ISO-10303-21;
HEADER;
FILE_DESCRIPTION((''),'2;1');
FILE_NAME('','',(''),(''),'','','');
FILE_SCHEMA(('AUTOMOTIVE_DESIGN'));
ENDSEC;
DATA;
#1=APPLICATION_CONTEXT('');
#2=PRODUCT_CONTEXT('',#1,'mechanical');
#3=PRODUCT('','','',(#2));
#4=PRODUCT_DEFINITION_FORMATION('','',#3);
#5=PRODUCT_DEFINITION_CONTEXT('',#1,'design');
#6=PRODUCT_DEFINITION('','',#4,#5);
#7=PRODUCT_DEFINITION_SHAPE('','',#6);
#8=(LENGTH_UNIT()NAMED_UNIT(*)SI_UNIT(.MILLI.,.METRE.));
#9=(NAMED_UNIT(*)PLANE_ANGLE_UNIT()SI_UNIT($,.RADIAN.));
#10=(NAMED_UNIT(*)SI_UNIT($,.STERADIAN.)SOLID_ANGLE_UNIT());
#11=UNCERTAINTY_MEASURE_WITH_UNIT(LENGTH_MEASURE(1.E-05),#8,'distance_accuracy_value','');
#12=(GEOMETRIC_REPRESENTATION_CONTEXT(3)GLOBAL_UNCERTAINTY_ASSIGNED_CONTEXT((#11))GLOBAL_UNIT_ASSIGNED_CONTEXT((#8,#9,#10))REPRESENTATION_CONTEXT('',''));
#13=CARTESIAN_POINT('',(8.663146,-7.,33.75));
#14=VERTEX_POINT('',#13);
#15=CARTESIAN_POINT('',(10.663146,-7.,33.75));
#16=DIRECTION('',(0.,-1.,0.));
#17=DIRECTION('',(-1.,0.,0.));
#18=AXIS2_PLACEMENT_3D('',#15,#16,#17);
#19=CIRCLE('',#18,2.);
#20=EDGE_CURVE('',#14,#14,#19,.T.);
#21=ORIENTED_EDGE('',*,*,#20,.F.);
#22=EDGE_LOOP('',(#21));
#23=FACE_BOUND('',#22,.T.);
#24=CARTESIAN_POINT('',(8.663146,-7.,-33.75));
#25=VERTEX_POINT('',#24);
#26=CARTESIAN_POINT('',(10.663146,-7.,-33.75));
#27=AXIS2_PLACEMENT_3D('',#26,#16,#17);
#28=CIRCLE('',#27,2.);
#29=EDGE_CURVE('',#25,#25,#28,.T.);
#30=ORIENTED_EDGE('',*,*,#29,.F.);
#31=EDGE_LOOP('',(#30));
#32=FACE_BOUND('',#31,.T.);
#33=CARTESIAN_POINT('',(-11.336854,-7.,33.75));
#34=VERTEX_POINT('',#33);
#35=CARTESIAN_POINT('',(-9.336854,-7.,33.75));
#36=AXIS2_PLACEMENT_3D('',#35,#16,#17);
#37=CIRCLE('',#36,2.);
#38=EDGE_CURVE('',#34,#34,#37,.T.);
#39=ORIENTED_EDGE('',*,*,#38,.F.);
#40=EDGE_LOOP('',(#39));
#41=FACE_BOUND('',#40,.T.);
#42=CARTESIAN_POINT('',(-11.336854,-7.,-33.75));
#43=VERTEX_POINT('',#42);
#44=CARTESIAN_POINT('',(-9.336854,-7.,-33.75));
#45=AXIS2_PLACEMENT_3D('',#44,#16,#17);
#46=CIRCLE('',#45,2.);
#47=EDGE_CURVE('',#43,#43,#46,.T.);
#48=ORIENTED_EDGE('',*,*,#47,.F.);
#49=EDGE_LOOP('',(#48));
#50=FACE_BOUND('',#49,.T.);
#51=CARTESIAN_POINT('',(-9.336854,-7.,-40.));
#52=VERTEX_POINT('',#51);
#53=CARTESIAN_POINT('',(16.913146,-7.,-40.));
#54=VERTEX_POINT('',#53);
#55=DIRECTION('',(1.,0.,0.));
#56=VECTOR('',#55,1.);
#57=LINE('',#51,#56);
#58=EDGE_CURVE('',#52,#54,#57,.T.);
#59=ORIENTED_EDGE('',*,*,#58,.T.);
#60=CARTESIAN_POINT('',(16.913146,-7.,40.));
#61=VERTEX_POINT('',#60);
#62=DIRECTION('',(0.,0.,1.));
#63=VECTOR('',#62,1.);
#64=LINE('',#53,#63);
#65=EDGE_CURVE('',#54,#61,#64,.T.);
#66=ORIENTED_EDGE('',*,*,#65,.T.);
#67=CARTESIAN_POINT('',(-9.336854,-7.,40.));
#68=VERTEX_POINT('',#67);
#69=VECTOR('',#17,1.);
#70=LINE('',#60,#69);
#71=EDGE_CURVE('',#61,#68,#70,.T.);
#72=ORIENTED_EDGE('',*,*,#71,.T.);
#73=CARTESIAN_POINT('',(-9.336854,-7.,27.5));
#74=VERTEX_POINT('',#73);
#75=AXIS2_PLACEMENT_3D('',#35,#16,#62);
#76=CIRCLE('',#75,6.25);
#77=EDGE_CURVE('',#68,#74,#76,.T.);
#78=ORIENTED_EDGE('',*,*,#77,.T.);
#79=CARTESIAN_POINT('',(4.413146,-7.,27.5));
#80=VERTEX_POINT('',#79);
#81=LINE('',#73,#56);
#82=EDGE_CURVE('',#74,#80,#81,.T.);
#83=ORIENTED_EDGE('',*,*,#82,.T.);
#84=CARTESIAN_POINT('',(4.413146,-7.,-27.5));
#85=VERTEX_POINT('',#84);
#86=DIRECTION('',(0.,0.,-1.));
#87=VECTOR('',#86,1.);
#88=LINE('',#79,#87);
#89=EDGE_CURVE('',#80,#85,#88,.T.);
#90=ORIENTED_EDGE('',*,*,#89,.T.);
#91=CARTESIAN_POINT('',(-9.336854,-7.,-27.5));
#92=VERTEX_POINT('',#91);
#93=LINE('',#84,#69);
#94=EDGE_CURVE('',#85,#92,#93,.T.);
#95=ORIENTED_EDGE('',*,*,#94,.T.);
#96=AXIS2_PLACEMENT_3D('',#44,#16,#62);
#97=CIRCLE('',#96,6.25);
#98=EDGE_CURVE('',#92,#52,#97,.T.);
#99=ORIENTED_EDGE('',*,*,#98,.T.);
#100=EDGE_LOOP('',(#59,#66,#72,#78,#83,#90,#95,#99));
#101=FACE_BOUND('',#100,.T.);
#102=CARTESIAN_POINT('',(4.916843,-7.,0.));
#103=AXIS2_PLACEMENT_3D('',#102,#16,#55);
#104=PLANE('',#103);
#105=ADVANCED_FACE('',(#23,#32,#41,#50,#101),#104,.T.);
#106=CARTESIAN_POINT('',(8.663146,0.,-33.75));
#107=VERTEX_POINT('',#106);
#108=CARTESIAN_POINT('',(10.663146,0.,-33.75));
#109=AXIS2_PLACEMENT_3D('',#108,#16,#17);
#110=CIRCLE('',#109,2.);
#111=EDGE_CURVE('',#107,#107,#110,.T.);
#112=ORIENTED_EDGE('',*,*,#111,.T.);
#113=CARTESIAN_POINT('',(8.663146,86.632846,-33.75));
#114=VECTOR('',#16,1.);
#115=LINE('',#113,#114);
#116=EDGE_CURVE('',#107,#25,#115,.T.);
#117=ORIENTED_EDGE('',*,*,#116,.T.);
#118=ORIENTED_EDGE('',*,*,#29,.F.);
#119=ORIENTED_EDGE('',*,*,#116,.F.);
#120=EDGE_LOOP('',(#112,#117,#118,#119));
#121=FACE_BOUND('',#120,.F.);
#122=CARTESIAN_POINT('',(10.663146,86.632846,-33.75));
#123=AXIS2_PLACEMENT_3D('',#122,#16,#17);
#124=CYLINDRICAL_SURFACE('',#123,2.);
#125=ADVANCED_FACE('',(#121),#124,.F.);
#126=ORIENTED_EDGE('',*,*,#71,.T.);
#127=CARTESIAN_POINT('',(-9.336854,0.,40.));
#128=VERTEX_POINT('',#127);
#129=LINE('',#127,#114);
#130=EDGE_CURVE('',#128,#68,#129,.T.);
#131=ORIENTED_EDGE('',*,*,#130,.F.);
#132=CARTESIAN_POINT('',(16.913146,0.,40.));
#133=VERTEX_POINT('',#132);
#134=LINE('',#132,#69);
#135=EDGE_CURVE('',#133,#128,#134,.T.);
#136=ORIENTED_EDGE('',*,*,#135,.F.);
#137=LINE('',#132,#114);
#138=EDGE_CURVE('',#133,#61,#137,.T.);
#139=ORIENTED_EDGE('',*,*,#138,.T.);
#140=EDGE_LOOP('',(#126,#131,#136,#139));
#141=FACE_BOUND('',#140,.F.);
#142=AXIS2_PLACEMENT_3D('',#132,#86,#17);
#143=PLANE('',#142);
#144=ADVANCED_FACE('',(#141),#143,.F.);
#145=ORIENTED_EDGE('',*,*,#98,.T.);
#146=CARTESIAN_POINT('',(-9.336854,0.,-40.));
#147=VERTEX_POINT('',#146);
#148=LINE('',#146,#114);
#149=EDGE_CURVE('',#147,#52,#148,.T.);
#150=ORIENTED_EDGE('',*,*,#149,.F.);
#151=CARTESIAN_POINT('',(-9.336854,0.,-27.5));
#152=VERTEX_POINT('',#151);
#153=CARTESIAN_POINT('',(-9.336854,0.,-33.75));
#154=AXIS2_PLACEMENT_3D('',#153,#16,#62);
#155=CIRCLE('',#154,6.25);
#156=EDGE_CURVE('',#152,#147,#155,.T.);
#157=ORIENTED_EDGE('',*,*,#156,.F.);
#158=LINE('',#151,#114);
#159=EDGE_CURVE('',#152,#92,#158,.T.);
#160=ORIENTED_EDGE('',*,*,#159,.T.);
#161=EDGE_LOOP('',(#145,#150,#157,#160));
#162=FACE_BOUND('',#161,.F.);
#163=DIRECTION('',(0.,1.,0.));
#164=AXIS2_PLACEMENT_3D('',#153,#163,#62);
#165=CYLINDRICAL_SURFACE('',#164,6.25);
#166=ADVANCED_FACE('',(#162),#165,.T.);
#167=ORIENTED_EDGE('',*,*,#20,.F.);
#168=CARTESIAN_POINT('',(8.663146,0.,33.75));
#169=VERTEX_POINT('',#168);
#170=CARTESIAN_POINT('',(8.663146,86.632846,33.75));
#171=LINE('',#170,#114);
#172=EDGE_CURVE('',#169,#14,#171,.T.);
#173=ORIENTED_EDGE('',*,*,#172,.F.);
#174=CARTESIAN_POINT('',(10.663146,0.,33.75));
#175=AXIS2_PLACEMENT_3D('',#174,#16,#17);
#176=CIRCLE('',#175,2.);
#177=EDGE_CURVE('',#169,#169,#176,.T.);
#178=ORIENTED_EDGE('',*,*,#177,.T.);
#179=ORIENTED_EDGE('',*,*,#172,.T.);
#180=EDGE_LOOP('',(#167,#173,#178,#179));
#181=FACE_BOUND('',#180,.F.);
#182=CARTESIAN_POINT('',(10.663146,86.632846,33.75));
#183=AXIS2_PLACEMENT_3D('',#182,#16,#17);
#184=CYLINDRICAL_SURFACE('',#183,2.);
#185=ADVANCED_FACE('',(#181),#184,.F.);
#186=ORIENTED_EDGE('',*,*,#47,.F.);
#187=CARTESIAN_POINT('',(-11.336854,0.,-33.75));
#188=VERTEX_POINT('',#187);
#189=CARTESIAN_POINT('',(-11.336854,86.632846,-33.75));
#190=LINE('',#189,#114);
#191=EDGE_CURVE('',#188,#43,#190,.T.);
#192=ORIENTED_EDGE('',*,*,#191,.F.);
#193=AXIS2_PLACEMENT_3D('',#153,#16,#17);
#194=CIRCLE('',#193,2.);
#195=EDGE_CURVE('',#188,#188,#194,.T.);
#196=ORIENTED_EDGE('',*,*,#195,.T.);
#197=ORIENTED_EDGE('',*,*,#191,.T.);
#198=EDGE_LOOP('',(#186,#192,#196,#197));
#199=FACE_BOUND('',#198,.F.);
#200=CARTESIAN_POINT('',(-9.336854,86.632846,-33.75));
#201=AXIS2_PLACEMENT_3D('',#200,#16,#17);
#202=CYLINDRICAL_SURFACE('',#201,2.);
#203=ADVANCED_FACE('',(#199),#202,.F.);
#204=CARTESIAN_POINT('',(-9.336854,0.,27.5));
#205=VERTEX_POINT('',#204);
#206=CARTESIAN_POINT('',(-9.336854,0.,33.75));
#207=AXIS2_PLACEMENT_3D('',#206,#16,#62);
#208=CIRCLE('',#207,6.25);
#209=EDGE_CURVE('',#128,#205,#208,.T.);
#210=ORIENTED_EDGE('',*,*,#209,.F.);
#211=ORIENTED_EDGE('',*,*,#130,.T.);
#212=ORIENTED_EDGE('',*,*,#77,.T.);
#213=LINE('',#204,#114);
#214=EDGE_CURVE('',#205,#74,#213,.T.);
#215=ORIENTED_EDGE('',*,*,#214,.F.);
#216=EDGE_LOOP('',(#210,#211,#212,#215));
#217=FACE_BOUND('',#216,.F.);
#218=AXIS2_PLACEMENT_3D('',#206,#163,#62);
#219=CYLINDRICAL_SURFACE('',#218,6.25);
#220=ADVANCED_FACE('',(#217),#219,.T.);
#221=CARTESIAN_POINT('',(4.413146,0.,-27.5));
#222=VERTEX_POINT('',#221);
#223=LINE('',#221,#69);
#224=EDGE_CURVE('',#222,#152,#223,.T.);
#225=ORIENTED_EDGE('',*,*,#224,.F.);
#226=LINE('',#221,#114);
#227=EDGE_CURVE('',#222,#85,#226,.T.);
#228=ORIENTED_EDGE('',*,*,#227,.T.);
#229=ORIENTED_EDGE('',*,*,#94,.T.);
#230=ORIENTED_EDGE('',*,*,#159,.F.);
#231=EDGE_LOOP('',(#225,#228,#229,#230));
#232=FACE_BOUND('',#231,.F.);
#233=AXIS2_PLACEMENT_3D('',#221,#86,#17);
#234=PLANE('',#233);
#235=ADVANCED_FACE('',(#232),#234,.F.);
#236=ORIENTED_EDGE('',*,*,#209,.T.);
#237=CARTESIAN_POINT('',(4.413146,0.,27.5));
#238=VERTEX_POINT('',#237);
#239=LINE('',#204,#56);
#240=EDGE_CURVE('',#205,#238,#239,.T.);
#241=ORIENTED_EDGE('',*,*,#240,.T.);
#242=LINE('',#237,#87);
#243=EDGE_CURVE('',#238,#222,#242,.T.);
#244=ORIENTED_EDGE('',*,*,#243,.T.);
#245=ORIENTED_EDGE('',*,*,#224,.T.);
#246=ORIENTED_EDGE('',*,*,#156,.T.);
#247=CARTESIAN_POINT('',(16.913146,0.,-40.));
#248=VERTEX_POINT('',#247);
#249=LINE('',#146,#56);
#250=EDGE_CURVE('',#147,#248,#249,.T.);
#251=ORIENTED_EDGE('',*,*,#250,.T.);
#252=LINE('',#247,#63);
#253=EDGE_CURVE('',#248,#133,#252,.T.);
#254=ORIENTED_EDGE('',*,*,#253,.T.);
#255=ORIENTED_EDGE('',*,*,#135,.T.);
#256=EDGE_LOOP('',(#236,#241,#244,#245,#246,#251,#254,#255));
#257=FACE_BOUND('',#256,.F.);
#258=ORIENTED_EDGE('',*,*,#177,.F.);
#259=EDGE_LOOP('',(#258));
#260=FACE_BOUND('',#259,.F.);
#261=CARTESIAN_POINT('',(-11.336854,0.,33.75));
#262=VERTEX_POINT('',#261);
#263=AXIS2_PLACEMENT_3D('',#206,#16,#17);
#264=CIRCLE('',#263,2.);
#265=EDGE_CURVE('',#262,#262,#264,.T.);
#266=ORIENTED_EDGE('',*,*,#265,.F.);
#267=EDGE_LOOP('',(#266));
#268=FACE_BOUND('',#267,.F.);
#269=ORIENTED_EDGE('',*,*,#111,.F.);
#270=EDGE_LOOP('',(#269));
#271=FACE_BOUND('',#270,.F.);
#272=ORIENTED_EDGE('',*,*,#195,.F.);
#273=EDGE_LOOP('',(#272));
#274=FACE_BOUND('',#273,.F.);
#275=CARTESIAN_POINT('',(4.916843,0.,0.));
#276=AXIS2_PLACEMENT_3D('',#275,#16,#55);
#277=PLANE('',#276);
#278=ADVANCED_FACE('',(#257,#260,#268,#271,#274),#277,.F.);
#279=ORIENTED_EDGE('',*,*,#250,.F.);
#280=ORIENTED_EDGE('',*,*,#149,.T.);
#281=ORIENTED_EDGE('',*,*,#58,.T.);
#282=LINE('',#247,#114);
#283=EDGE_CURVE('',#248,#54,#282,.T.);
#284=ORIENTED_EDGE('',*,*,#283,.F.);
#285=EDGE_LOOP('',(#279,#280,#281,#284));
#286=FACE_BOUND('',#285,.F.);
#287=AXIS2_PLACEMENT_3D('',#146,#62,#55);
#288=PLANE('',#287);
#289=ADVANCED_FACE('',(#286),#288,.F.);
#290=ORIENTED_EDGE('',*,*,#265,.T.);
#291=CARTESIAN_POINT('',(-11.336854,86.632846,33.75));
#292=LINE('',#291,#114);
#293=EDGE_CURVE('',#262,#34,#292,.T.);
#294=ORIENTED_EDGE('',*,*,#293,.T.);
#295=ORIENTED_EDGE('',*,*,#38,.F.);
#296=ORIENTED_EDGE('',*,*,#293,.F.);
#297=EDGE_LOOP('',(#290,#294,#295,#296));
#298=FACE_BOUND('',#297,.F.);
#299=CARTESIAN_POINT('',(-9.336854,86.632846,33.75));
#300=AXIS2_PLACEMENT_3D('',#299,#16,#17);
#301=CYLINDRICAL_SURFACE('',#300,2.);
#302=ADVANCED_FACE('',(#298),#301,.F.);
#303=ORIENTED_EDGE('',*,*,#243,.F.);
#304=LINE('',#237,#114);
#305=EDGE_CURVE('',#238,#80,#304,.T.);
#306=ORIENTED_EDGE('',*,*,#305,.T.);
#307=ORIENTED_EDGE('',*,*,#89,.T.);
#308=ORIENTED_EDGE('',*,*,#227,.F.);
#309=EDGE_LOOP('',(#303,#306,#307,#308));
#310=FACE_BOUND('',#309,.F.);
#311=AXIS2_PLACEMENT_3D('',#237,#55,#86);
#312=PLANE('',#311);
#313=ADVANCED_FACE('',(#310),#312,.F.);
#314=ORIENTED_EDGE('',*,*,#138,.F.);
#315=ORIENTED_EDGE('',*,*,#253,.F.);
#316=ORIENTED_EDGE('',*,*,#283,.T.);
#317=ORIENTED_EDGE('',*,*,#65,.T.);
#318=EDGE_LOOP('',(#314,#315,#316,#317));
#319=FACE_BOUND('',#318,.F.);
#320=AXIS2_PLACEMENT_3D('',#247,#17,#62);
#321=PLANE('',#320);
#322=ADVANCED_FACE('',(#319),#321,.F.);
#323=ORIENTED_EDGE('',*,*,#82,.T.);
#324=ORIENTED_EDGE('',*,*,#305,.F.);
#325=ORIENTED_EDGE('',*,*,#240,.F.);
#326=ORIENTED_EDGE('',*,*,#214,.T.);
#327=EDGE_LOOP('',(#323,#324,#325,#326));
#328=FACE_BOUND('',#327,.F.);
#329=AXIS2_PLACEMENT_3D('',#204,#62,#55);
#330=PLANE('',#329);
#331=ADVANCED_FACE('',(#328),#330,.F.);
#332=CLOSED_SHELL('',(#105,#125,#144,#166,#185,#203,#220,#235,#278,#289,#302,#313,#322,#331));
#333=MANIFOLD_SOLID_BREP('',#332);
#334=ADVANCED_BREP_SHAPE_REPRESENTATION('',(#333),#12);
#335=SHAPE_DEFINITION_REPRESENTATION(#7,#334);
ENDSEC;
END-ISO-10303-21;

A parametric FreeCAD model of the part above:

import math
import FreeCAD as App
import Part
import Sketcher

V = App.Vector

doc = App.newDocument("Part")
body = doc.addObject("PartDesign::Body", "Body")

sketch1 = body.newObject("Sketcher::SketchObject", "Sketch")
sketch1.AttachmentSupport = (doc.getObject("XZ_Plane"), [""])
sketch1.MapMode = "FlatFace"
sketch1.addGeometry(Part.LineSegment(V(4, 28, 0), V(4, -28, 0)), False)
sketch1.addGeometry(Part.LineSegment(V(4, -28, 0), V(-9, -28, 0)), False)
sketch1.addGeometry(Part.ArcOfCircle(Part.Circle(V(-9, -34, 0), V(0, 0, 1), 6), math.radians(90), math.radians(270)), False)
sketch1.addGeometry(Part.LineSegment(V(-9, -40, 0), V(17, -40, 0)), False)
sketch1.addGeometry(Part.LineSegment(V(17, -40, 0), V(17, 40, 0)), False)
sketch1.addGeometry(Part.LineSegment(V(17, 40, 0), V(-9, 40, 0)), False)
sketch1.addGeometry(Part.ArcOfCircle(Part.Circle(V(-9, 34, 0), V(0, 0, 1), 6), math.radians(90), math.radians(270)), False)
sketch1.addGeometry(Part.LineSegment(V(-9, 28, 0), V(4, 28, 0)), False)
sketch1.addConstraint(Sketcher.Constraint("Coincident", 0, 2, 1, 1))
sketch1.addConstraint(Sketcher.Constraint("Tangent", 1, 2, 2, 1))
sketch1.addConstraint(Sketcher.Constraint("Tangent", 2, 2, 3, 1))
sketch1.addConstraint(Sketcher.Constraint("Coincident", 3, 2, 4, 1))
sketch1.addConstraint(Sketcher.Constraint("Coincident", 4, 2, 5, 1))
sketch1.addConstraint(Sketcher.Constraint("Tangent", 5, 2, 6, 1))
sketch1.addConstraint(Sketcher.Constraint("Tangent", 6, 2, 7, 1))
sketch1.addConstraint(Sketcher.Constraint("Coincident", 7, 2, 0, 1))
sketch1.addConstraint(Sketcher.Constraint("Vertical", 0))
sketch1.addConstraint(Sketcher.Constraint("Horizontal", 1))
sketch1.addConstraint(Sketcher.Constraint("Horizontal", 3))
sketch1.addConstraint(Sketcher.Constraint("Vertical", 4))
sketch1.addConstraint(Sketcher.Constraint("Horizontal", 5))
sketch1.addConstraint(Sketcher.Constraint("Horizontal", 7))
sketch1.addConstraint(Sketcher.Constraint("Equal", 2, 6))
sketch1.addConstraint(Sketcher.Constraint("Symmetric", 2, 3, 6, 3, -1))
sketch1.addConstraint(Sketcher.Constraint("DistanceY", 0, 2, 0, 1, 55.0))
sketch1.addConstraint(Sketcher.Constraint("DistanceY", 4, 1, 4, 2, 80.0))
sketch1.addConstraint(Sketcher.Constraint("DistanceX", 1, 2, 1, 1, 13.75))
sketch1.addConstraint(Sketcher.Constraint("DistanceX", 3, 1, 3, 2, 26.25))
sketch1.addConstraint(Sketcher.Constraint("DistanceX", 2, 3, -1, 1, 9.336854))
pad1 = body.newObject("PartDesign::Pad", "Pad")
pad1.Profile = sketch1
pad1.Length = 7

sketch2 = body.newObject("Sketcher::SketchObject", "Sketch001")
sketch2.AttachmentSupport = (doc.getObject("XZ_Plane"), [""])
sketch2.MapMode = "FlatFace"
sketch2.addGeometry(Part.Circle(V(-9.3, -33.8, 0), V(0, 0, 1), 2), False)
sketch2.addGeometry(Part.Circle(V(10.7, -33.8, 0), V(0, 0, 1), 2), False)
sketch2.addGeometry(Part.Circle(V(-9.3, 33.8, 0), V(0, 0, 1), 2), False)
sketch2.addGeometry(Part.Circle(V(10.7, 33.8, 0), V(0, 0, 1), 2), False)
sketch2.addConstraint(Sketcher.Constraint("Equal", 0, 1))
sketch2.addConstraint(Sketcher.Constraint("Equal", 1, 2))
sketch2.addConstraint(Sketcher.Constraint("Equal", 2, 3))
sketch2.addConstraint(Sketcher.Constraint("Symmetric", 0, 3, 2, 3, -1))
sketch2.addConstraint(Sketcher.Constraint("Symmetric", 1, 3, 3, 3, -1))
sketch2.addConstraint(Sketcher.Constraint("Horizontal", 0, 3, 1, 3))
sketch2.addConstraint(Sketcher.Constraint("Diameter", 0, 4.0))
sketch2.addConstraint(Sketcher.Constraint("DistanceX", 0, 3, 1, 3, 20.0))
sketch2.addConstraint(Sketcher.Constraint("DistanceY", 0, 3, 2, 3, 67.5))
sketch2.addConstraint(Sketcher.Constraint("DistanceX", 0, 3, -1, 1, 9.336854))
doc.recompute()
hole = body.newObject("PartDesign::Hole", "Hole")
hole.Profile = sketch2
hole.ThreadType = "None"
hole.Diameter = 4
hole.DepthType = "ThroughAll"
hole.Reversed = True

doc.recompute()
